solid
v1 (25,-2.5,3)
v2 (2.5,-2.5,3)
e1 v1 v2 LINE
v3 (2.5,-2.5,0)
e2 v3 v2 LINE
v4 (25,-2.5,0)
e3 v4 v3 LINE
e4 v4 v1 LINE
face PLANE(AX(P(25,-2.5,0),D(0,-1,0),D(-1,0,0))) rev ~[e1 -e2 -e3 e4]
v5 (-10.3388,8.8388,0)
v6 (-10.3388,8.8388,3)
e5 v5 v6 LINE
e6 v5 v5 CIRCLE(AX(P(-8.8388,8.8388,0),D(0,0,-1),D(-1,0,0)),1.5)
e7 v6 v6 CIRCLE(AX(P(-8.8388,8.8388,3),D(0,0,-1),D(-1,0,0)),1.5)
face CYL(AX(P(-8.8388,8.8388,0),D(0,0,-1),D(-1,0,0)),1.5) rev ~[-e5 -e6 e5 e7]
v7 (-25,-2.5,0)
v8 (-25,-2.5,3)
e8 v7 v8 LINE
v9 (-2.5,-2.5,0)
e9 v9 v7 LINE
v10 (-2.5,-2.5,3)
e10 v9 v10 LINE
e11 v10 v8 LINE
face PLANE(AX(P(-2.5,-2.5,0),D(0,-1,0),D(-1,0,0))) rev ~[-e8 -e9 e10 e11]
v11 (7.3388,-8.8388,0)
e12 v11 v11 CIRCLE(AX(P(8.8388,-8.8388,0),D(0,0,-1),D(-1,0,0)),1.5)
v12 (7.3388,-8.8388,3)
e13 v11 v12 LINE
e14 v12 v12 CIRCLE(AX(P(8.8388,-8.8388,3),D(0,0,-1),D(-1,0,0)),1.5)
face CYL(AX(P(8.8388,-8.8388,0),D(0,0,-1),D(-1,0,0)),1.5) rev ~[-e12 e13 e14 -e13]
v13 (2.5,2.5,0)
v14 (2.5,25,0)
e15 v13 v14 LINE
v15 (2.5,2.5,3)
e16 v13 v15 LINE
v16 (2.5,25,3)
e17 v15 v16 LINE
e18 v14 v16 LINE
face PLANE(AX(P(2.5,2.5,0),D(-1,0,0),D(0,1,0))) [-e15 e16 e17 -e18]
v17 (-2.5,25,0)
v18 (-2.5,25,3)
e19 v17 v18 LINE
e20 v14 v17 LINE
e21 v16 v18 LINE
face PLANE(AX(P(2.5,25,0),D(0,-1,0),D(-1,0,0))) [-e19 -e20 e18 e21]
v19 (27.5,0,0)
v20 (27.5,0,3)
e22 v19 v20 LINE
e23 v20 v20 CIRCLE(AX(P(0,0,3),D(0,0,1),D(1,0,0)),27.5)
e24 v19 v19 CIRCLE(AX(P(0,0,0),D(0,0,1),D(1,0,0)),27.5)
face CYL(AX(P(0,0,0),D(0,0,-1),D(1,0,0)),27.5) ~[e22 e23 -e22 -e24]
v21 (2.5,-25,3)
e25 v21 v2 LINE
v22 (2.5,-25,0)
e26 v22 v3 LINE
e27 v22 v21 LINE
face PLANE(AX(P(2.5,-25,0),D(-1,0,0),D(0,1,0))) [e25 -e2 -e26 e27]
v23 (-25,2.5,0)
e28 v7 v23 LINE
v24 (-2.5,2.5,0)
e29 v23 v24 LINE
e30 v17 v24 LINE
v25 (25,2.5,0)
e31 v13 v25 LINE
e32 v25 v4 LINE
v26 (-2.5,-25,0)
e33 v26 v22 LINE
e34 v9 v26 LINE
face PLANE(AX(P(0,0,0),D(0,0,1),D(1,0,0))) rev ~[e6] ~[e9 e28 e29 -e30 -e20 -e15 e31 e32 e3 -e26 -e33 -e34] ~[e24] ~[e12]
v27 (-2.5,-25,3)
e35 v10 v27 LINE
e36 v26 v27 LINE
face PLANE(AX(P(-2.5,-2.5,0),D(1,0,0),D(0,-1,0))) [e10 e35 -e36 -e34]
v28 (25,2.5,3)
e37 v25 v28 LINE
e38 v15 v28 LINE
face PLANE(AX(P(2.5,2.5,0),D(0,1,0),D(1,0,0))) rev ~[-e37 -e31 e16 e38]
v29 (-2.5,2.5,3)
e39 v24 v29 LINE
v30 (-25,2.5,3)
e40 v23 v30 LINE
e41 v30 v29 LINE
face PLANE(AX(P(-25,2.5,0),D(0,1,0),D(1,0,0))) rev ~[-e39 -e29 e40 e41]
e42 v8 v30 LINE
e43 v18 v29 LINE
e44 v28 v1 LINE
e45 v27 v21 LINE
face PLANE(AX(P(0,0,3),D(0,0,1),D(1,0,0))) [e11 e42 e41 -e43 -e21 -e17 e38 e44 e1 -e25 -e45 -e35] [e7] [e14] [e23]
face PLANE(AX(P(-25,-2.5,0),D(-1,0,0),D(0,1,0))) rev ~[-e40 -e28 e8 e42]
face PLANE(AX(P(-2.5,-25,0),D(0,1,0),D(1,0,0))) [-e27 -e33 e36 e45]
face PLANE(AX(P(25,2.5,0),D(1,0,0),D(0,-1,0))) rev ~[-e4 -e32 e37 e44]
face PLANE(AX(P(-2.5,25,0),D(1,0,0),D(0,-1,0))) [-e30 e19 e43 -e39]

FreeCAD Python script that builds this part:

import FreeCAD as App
import Part
import Sketcher
from FreeCAD import Vector
Q = App.Units.Quantity


def add_polygon(sketch, points):
    """Adds a closed chain of lines whose ends are joined by coincident constraints."""
    first, n = sketch.GeometryCount, len(points)
    for a, b in zip(points, points[1:] + points[:1]):
        sketch.addGeometry(Part.LineSegment(App.Vector(*a, 0), App.Vector(*b, 0)), False)
    for i in range(n):
        sketch.addConstraint(Sketcher.Constraint("Coincident", first + i, 2, first + (i + 1) % n, 1))

doc = App.newDocument("Part")
params = doc.addObject("Spreadsheet::Sheet", "Params")
for row, (alias, value) in enumerate([
    ("sketch1_diameter", "55 mm"),
    ("pad1_length", "3 mm"),
    ("sketch2_width", "5 mm"),
    ("sketch3_diameter", "3 mm"),
    ("pocket2_length", "3 mm"),
], start=1):
    params.set(f"A{row}", alias)
    params.set(f"B{row}", "=" + value)
    params.setAlias(f"B{row}", alias)

body = doc.addObject("PartDesign::Body", "Body")

sketch1 = body.newObject("Sketcher::SketchObject", "Sketch")
sketch1.AttachmentSupport = (doc.getObject("XY_Plane"), [""])
sketch1.MapMode = "FlatFace"
sketch1.addGeometry(Part.Circle(Vector(0, 0, 0), Vector(0, 0, 1), 28), False)
sketch1.addConstraint([
    Sketcher.Constraint("Coincident", 0, 3, -1, 1),
    Sketcher.Constraint("Diameter", 0, Q("55 mm")),
])
sketch1.setExpression("Constraints[1]", "Params.sketch1_diameter")
pad1 = body.newObject("PartDesign::Pad", "Pad")
pad1.Profile = sketch1
pad1.setExpression("Length", "Params.pad1_length")

sketch2 = body.newObject("Sketcher::SketchObject", "Sketch001")
sketch2.AttachmentSupport = (doc.getObject("XY_Plane"), [""])
sketch2.MapMode = "FlatFace"
add_polygon(sketch2, [(2, -2), (2, -25), (-2, -25), (-2, -2), (-25, -2), (-25, 2), (-2, 2), (-2, 25), (2, 25), (2, 2), (25, 2), (25, -2)])
sketch2.addConstraint([
    Sketcher.Constraint("Vertical", 0),
    Sketcher.Constraint("Horizontal", 1),
    Sketcher.Constraint("Vertical", 2),
    Sketcher.Constraint("Horizontal", 3),
    Sketcher.Constraint("Vertical", 4),
    Sketcher.Constraint("Horizontal", 5),
    Sketcher.Constraint("Vertical", 6),
    Sketcher.Constraint("Horizontal", 7),
    Sketcher.Constraint("Vertical", 8),
    Sketcher.Constraint("Horizontal", 9),
    Sketcher.Constraint("Vertical", 10),
    Sketcher.Constraint("Horizontal", 11),
    Sketcher.Constraint("Symmetric", 0, 2, 6, 2, -1, 1),
    Sketcher.Constraint("Symmetric", 2, 2, 8, 2, -1, 1),
    Sketcher.Constraint("Symmetric", 4, 2, 10, 2, -1, 1),
    Sketcher.Constraint("Symmetric", 5, 2, 8, 2, -2),
    Sketcher.Constraint("Equal", 11, 0),
    Sketcher.Constraint("Equal", 7, 4),
    Sketcher.Constraint("DistanceX", 1, 2, 1, 1, Q("5 mm")),
    Sketcher.Constraint("DistanceY", 1, 2, 6, 2, Q("50 mm")),
])
sketch2.setExpression("Constraints[30]", "Params.sketch2_width")
pocket1 = body.newObject("PartDesign::Pocket", "Pocket")
pocket1.Profile = sketch2
pocket1.Type = "UpToFirst"
pocket1.Reversed = True

sketch3 = body.newObject("Sketcher::SketchObject", "Sketch002")
sketch3.AttachmentSupport = (doc.getObject("XY_Plane"), [""])
sketch3.MapMode = "FlatFace"
sketch3.addGeometry([
    Part.Circle(Vector(-8.8, 8.8, 0), Vector(0, 0, 1), 1.5),
    Part.Circle(Vector(8.8, -8.8, 0), Vector(0, 0, 1), 1.5),
], False)
sketch3.addConstraint([
    Sketcher.Constraint("Equal", 0, 1),
    Sketcher.Constraint("Symmetric", 0, 3, 1, 3, -1, 1),
    Sketcher.Constraint("Diameter", 0, Q("3 mm")),
    Sketcher.Constraint("DistanceX", 0, 3, -1, 1, Q("8.8388 mm")),
    Sketcher.Constraint("DistanceY", -1, 1, 0, 3, Q("8.8388 mm")),
])
sketch3.setExpression("Constraints[2]", "Params.sketch3_diameter")
pocket2 = body.newObject("PartDesign::Pocket", "Pocket001")
pocket2.Profile = sketch3
pocket2.setExpression("Length", "Params.pocket2_length")
pocket2.Reversed = True

doc.recompute()
